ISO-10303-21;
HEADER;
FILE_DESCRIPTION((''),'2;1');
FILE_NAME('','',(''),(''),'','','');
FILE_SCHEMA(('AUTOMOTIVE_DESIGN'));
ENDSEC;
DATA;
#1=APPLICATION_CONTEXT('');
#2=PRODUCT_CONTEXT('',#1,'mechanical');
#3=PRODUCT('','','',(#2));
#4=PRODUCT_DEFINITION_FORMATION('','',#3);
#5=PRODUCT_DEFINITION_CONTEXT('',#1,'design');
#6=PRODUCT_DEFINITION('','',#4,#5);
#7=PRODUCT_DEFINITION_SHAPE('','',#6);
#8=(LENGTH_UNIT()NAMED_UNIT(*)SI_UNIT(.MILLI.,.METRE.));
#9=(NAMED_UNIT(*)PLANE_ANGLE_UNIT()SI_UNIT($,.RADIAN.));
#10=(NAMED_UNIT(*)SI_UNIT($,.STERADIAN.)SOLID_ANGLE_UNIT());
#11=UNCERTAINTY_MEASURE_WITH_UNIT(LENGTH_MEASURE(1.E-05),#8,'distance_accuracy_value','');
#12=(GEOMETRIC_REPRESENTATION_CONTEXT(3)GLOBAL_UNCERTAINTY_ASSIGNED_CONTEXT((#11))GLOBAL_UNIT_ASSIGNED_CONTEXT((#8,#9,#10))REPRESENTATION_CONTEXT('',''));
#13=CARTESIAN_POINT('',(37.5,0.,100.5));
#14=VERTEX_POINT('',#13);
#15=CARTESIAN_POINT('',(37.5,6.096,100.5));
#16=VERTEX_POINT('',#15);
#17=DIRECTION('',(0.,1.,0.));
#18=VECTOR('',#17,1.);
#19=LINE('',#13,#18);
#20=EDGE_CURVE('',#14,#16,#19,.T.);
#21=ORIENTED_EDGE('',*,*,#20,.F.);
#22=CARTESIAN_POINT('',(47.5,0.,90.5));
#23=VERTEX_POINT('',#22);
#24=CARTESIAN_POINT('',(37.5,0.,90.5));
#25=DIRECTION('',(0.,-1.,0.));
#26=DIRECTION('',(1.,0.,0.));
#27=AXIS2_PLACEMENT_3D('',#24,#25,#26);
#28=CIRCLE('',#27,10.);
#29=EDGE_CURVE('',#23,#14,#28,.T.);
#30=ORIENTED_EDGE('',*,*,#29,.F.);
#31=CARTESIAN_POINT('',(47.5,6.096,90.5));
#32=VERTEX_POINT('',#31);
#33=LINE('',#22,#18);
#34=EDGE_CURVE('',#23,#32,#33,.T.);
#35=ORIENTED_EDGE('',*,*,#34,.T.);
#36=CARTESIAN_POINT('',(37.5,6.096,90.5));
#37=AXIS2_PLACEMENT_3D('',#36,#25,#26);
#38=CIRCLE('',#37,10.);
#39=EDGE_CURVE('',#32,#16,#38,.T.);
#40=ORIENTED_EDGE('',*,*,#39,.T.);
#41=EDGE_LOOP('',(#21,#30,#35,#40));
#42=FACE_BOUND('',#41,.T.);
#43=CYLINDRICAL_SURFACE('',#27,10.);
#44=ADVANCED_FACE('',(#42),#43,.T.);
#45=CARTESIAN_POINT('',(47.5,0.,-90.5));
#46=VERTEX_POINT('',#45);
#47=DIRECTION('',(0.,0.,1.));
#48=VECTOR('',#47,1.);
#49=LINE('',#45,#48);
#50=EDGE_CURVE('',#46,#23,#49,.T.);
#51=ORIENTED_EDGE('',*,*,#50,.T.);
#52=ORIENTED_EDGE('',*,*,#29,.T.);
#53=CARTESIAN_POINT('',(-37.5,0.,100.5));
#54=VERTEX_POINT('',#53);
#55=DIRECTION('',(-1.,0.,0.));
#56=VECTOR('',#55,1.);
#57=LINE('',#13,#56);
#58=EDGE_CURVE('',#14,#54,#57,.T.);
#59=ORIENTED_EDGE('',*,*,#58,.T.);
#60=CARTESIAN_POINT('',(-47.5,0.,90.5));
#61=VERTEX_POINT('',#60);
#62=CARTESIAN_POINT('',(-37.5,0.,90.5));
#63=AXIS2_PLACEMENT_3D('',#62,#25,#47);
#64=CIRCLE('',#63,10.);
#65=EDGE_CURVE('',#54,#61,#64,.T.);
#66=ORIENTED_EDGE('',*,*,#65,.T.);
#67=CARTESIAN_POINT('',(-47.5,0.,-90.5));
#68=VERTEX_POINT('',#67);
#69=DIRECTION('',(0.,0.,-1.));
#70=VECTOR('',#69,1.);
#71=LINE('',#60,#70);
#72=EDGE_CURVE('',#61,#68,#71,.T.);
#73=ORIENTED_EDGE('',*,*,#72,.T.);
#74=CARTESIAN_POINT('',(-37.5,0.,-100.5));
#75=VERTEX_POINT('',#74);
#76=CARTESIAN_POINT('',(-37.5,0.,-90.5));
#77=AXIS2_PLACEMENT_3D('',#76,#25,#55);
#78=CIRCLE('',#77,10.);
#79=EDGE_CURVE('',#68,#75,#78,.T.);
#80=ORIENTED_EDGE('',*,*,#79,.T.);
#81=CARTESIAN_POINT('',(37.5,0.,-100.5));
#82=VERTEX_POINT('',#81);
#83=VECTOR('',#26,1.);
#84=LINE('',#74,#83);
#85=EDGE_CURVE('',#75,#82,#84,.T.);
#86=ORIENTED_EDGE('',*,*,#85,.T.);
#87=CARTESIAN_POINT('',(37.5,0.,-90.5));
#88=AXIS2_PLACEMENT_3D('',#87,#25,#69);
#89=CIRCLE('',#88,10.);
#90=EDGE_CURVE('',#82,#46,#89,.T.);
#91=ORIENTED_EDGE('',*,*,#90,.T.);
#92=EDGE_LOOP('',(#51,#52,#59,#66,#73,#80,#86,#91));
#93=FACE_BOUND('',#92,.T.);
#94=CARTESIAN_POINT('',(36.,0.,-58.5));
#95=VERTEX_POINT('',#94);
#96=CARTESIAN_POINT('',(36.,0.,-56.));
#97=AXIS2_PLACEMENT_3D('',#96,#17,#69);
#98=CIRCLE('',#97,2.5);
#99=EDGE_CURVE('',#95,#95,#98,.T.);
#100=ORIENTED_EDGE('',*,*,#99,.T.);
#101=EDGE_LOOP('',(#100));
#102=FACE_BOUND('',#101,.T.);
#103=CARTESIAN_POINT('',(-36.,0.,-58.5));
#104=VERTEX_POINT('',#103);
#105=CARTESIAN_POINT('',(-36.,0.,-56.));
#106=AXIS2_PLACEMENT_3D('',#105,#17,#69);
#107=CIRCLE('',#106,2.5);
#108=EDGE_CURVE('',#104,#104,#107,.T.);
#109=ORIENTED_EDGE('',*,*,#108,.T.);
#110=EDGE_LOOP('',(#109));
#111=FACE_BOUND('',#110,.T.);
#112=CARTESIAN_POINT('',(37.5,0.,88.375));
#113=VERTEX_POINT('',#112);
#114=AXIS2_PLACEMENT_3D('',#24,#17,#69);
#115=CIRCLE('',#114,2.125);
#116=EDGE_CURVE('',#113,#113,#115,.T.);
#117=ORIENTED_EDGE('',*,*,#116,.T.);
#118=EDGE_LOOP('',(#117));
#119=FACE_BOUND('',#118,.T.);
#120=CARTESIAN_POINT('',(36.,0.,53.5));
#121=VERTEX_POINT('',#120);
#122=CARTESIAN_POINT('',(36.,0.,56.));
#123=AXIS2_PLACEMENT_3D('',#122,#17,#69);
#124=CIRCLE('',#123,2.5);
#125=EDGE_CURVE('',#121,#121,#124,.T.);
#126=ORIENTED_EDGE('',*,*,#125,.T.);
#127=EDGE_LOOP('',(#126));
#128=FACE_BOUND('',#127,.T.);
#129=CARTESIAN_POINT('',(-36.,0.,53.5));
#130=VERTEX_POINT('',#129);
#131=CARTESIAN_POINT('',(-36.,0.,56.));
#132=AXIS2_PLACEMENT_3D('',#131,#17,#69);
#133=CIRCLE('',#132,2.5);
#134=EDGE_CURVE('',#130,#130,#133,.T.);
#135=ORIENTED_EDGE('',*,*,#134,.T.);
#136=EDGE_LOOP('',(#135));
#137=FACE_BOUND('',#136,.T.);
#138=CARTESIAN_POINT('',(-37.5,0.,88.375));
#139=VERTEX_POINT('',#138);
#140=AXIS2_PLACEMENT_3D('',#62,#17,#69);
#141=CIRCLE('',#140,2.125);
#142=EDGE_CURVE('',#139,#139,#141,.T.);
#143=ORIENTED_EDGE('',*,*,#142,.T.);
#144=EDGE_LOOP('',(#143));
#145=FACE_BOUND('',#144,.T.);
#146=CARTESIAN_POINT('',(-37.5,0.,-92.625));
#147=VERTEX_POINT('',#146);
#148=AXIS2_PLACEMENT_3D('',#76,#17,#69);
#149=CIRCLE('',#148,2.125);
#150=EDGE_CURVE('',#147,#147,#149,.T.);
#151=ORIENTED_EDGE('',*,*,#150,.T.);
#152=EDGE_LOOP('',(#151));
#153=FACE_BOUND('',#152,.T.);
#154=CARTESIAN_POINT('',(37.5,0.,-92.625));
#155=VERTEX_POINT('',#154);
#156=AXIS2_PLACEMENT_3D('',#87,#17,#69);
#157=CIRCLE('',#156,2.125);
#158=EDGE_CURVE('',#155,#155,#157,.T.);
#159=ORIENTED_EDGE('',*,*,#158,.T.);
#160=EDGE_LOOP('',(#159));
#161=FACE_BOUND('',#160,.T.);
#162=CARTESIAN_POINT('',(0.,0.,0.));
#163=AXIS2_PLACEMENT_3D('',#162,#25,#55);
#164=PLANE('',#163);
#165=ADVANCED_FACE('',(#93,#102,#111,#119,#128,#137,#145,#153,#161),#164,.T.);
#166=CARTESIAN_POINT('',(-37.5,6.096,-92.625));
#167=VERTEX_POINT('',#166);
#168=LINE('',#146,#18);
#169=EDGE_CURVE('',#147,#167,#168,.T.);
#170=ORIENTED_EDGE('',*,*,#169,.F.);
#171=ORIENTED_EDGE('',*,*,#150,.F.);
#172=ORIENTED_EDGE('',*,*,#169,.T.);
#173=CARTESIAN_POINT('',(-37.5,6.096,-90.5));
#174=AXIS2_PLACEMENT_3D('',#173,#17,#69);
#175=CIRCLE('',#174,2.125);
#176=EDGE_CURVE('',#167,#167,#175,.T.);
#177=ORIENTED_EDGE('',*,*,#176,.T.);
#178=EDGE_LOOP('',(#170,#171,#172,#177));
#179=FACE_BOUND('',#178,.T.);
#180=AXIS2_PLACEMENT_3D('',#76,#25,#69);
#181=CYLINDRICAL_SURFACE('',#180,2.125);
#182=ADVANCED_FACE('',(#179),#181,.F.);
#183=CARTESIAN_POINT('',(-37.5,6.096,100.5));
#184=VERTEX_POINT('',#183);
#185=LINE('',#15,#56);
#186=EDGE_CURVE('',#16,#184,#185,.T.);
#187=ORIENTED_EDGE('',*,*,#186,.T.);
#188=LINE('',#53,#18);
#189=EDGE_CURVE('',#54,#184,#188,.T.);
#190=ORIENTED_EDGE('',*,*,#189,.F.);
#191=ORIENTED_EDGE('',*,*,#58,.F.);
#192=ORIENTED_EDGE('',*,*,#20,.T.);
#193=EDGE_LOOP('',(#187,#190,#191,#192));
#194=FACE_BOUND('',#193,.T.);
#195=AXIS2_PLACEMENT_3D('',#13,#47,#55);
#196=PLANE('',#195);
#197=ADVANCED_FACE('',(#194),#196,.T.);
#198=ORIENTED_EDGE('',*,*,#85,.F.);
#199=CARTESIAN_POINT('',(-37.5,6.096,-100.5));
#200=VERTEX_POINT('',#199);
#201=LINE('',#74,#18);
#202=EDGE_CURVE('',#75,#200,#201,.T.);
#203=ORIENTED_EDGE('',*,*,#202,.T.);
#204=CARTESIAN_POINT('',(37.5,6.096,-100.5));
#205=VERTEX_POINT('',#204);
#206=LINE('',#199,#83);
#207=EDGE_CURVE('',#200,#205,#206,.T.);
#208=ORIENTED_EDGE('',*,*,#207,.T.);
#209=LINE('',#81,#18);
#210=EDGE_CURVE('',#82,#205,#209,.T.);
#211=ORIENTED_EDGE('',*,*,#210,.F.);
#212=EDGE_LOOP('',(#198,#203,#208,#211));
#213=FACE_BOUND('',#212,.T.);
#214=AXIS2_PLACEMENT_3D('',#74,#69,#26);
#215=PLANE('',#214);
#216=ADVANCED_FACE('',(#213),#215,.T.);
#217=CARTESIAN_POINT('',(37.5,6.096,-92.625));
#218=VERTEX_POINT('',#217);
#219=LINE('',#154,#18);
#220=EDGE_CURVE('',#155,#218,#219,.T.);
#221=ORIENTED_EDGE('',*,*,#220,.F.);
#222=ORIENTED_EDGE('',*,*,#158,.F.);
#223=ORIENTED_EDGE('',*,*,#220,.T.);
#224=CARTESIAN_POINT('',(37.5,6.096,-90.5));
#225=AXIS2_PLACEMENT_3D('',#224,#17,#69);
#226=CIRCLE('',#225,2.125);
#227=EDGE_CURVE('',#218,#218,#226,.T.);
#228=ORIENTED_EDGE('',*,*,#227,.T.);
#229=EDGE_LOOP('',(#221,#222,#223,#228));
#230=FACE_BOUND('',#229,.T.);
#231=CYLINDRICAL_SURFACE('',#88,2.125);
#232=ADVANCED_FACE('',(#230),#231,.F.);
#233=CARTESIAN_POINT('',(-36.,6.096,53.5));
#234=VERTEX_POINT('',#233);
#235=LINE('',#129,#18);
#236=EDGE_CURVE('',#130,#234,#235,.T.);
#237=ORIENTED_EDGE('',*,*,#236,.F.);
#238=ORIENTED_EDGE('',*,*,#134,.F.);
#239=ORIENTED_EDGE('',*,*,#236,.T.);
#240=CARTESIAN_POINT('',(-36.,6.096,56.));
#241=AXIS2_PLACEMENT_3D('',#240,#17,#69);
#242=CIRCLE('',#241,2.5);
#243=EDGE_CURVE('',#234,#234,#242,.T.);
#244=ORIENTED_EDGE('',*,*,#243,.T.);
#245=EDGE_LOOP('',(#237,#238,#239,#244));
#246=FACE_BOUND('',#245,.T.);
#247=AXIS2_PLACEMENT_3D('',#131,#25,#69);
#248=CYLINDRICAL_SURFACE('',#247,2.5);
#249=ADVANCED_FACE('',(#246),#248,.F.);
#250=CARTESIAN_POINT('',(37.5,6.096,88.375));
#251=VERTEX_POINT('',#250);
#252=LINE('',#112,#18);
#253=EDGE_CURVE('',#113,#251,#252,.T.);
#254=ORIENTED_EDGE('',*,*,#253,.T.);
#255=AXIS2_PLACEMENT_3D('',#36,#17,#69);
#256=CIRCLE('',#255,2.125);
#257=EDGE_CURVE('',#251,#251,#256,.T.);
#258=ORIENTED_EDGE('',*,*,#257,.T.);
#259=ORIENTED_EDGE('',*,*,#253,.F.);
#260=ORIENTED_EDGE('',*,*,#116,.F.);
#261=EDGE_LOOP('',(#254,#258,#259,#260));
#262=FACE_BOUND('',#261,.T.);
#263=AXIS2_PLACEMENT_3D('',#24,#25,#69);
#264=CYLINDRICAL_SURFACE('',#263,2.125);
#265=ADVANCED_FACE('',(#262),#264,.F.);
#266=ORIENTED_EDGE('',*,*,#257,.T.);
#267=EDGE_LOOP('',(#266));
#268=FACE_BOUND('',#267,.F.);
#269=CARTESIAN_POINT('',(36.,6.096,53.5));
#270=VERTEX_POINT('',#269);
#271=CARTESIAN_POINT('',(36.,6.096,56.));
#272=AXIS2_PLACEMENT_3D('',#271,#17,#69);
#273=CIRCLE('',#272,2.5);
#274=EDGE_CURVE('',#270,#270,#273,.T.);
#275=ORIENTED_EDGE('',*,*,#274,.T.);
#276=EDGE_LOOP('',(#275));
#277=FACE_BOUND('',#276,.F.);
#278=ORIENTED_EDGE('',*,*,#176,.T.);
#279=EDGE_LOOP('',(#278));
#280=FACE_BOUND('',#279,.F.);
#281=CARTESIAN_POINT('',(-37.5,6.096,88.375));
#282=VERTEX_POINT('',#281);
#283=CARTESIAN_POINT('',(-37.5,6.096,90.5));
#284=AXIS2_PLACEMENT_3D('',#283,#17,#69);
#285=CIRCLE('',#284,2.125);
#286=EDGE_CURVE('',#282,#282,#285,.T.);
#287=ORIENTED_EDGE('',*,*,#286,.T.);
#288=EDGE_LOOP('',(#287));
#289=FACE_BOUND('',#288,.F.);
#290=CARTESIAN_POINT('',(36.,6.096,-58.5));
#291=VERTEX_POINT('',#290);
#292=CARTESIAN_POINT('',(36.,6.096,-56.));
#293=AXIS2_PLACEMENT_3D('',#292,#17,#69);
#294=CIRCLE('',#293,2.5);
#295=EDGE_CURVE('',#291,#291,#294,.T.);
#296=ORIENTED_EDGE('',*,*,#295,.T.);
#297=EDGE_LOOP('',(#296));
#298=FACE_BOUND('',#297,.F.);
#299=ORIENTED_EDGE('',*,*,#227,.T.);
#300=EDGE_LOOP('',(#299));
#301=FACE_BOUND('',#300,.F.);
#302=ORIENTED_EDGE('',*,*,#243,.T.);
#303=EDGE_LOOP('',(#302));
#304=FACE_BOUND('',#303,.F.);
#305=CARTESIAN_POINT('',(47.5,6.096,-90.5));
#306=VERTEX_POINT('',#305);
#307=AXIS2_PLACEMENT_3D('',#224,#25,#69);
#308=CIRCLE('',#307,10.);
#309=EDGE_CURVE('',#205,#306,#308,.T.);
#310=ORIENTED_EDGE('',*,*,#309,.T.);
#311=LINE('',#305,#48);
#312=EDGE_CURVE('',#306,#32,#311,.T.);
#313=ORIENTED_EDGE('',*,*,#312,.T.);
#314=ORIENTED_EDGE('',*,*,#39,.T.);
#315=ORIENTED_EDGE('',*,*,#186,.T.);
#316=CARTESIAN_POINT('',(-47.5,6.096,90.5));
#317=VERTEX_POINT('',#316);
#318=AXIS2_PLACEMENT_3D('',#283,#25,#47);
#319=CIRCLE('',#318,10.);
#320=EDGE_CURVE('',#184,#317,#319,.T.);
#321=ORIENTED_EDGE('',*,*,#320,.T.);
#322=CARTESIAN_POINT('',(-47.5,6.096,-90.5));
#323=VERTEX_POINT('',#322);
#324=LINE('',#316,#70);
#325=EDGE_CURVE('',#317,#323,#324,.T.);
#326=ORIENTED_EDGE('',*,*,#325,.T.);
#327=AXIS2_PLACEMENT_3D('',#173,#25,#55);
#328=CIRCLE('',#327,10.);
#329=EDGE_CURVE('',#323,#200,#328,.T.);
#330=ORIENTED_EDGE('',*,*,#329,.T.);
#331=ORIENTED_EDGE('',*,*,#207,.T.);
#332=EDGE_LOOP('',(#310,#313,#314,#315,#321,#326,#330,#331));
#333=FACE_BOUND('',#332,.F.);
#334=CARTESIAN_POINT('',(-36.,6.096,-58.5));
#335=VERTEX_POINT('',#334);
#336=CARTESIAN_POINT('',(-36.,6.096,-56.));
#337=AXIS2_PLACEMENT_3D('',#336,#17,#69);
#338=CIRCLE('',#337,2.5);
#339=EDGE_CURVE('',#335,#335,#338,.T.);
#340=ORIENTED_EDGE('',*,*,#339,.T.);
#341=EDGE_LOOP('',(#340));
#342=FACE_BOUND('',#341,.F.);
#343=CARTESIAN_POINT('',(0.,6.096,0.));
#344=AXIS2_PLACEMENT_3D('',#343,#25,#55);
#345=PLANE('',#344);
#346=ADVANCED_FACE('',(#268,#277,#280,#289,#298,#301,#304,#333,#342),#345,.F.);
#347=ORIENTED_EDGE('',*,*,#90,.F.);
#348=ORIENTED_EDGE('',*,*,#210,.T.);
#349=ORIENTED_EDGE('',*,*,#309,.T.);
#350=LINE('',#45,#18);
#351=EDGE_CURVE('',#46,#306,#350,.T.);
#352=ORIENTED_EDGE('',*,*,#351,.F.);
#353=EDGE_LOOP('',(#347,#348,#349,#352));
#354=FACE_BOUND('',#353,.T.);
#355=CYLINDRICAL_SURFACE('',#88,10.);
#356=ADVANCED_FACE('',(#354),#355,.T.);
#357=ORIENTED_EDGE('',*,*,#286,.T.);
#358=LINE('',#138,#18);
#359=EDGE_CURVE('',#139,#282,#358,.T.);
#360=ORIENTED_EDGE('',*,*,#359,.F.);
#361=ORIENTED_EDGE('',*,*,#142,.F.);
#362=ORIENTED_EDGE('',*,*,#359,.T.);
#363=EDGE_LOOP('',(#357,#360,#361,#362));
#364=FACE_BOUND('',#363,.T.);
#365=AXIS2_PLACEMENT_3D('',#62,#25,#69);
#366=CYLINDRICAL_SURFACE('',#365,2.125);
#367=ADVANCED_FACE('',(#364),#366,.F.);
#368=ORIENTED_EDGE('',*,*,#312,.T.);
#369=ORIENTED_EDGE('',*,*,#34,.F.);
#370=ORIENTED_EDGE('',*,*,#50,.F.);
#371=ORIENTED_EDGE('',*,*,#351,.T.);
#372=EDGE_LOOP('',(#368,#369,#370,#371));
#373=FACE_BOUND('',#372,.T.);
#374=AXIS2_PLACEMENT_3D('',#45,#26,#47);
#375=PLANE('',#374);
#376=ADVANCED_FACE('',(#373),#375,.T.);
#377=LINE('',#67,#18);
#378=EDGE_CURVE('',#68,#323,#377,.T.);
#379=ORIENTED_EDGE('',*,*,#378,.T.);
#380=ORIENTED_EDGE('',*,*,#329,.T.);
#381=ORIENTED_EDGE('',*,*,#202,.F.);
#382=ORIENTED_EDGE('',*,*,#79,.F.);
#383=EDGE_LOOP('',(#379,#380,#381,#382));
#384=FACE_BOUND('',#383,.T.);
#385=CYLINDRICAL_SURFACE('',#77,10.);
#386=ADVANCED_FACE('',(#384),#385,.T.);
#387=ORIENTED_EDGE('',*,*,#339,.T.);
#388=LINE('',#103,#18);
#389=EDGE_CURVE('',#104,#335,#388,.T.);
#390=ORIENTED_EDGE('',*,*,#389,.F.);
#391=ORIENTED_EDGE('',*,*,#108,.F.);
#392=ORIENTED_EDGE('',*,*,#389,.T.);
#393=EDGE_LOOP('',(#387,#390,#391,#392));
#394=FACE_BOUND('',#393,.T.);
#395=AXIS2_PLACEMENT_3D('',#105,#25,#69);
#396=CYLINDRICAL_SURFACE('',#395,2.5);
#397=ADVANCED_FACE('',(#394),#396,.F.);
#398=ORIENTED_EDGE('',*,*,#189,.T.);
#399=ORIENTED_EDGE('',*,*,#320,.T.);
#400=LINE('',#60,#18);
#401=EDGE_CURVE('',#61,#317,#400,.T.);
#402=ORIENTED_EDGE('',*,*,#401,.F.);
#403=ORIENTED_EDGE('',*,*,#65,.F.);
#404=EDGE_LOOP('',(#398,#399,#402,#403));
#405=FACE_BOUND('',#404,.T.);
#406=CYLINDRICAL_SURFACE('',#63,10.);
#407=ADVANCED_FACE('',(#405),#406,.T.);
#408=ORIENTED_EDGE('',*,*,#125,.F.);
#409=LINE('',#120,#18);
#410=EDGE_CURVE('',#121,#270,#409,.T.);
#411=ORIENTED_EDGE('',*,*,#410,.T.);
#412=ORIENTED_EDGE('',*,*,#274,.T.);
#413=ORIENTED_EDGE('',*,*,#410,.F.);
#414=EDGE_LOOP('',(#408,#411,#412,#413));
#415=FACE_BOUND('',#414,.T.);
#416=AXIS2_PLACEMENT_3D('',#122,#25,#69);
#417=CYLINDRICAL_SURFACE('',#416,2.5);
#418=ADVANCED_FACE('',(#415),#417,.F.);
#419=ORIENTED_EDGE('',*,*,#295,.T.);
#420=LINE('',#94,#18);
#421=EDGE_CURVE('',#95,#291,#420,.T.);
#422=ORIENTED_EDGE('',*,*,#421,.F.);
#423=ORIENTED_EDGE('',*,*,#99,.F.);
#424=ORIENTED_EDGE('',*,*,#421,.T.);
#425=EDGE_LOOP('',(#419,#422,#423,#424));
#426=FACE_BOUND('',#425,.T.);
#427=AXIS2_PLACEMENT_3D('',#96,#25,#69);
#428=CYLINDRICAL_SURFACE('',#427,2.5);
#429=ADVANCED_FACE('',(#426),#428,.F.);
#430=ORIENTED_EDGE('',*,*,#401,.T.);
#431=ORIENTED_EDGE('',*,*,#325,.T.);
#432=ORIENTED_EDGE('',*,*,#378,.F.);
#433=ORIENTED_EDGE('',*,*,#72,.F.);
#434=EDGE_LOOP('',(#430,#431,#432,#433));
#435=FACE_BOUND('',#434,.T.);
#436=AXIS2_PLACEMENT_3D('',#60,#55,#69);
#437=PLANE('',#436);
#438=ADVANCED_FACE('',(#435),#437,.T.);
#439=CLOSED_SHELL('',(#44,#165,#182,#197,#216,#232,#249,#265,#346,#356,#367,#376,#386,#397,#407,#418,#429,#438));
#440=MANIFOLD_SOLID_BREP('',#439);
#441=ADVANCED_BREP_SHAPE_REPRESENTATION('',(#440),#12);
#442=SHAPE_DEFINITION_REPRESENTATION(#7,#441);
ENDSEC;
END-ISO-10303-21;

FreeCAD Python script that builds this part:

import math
import FreeCAD as App
import Part
import Sketcher

doc = App.newDocument("Part")
params = doc.addObject("Spreadsheet::Sheet", "Params")
for row, (alias, value) in enumerate([
    ("sketch1_diameter", "5 mm"),
    ("sketch1_radius", "10 mm"),
    ("sketch1_diameter2", "4.25 mm"),
    ("sketch1_width", "75 mm"),
    ("sketch1_height", "181 mm"),
    ("pad1_length", "6.096 mm"),
], start=1):
    params.set(f"A{row}", alias)
    params.set(f"B{row}", "=" + value)
    params.setAlias(f"B{row}", alias)

body = doc.addObject("PartDesign::Body", "Body")

# Sketch on XZ plane
sketch1 = doc.addObject("Sketcher::SketchObject", "Sketch")
body.addObject(sketch1)
sketch1.AttachmentSupport = (doc.XZ_Plane, [""])
sketch1.MapMode = "FlatFace"
sketch1.addGeometry([
    Part.LineSegment(App.Vector(37.5, -100.5, 0), App.Vector(-37.5, -100.5, 0)),  # 0
    Part.ArcOfCircle(Part.Circle(App.Vector(-37.5, -90.5, 0), App.Vector(0, 0, 1), 10), math.radians(180), math.radians(270)),  # 1
    Part.LineSegment(App.Vector(-47.5, -90.5, 0), App.Vector(-47.5, 90.5, 0)),  # 2
    Part.ArcOfCircle(Part.Circle(App.Vector(-37.5, 90.5, 0), App.Vector(0, 0, 1), 10), math.radians(90), math.radians(180)),  # 3
    Part.LineSegment(App.Vector(-37.5, 100.5, 0), App.Vector(37.5, 100.5, 0)),  # 4
    Part.ArcOfCircle(Part.Circle(App.Vector(37.5, 90.5, 0), App.Vector(0, 0, 1), 10), math.radians(0), math.radians(90)),  # 5
    Part.LineSegment(App.Vector(47.5, 90.5, 0), App.Vector(47.5, -90.5, 0)),  # 6
    Part.ArcOfCircle(Part.Circle(App.Vector(37.5, -90.5, 0), App.Vector(0, 0, 1), 10), math.radians(-90), math.radians(0)),  # 7
    Part.Circle(App.Vector(37.5, 90.5, 0), App.Vector(0, 0, 1), 2.125),  # 8
    Part.Circle(App.Vector(36, 56, 0), App.Vector(0, 0, 1), 2.5),  # 9
    Part.Circle(App.Vector(-37.5, 90.5, 0), App.Vector(0, 0, 1), 2.125),  # 10
    Part.Circle(App.Vector(-36, 56, 0), App.Vector(0, 0, 1), 2.5),  # 11
    Part.Circle(App.Vector(36, -56, 0), App.Vector(0, 0, 1), 2.5),  # 12
    Part.Circle(App.Vector(37.5, -90.5, 0), App.Vector(0, 0, 1), 2.125),  # 13
    Part.Circle(App.Vector(-36, -56, 0), App.Vector(0, 0, 1), 2.5),  # 14
    Part.Circle(App.Vector(-37.5, -90.5, 0), App.Vector(0, 0, 1), 2.125),  # 15
], False)
sketch1.addConstraint([
    Sketcher.Constraint("Tangent", 0, 2, 1, 2),
    Sketcher.Constraint("Tangent", 1, 1, 2, 1),
    Sketcher.Constraint("Tangent", 2, 2, 3, 2),
    Sketcher.Constraint("Tangent", 3, 1, 4, 1),
    Sketcher.Constraint("Tangent", 4, 2, 5, 2),
    Sketcher.Constraint("Tangent", 5, 1, 6, 1),
    Sketcher.Constraint("Tangent", 6, 2, 7, 2),
    Sketcher.Constraint("Tangent", 7, 1, 0, 1),
    Sketcher.Constraint("Horizontal", 0),
    Sketcher.Constraint("Vertical", 2),
    Sketcher.Constraint("Horizontal", 4),
    Sketcher.Constraint("Vertical", 6),
    Sketcher.Constraint("Coincident", 8, 3, 5, 3),
    Sketcher.Constraint("Coincident", 10, 3, 3, 3),
    Sketcher.Constraint("Coincident", 13, 3, 7, 3),
    Sketcher.Constraint("Coincident", 15, 3, 1, 3),
    Sketcher.Constraint("Equal", 1, 3),
    Sketcher.Constraint("Equal", 3, 5),
    Sketcher.Constraint("Equal", 5, 7),
    Sketcher.Constraint("Equal", 8, 10),
    Sketcher.Constraint("Equal", 9, 11),
    Sketcher.Constraint("Equal", 11, 12),
    Sketcher.Constraint("Equal", 10, 13),
    Sketcher.Constraint("Equal", 12, 14),
    Sketcher.Constraint("Equal", 13, 15),
    Sketcher.Constraint("Symmetric", 1, 3, 5, 3, -1, 1),
    Sketcher.Constraint("Symmetric", 11, 3, 12, 3, -1, 1),
    Sketcher.Constraint("Symmetric", 9, 3, 14, 3, -1, 1),
    Sketcher.Constraint("Symmetric", 9, 3, 11, 3, -2),
    Sketcher.Constraint("Diameter", 9, 5.0),
    Sketcher.Constraint("Radius", 1, 10.0),
    Sketcher.Constraint("Diameter", 8, 4.25),
    Sketcher.Constraint("DistanceX", 0, 2, 0, 1, 75.0),
    Sketcher.Constraint("DistanceY", 2, 1, 2, 2, 181.0),
    Sketcher.Constraint("DistanceX", -1, 1, 9, 3, 36.0),
    Sketcher.Constraint("DistanceY", -1, 1, 9, 3, 56.0),
])
sketch1.setExpression("Constraints[29]", "Params.sketch1_diameter")
sketch1.setExpression("Constraints[30]", "Params.sketch1_radius")
sketch1.setExpression("Constraints[31]", "Params.sketch1_diameter2")
sketch1.setExpression("Constraints[32]", "Params.sketch1_width")
sketch1.setExpression("Constraints[33]", "Params.sketch1_height")
pad1 = doc.addObject("PartDesign::Pad", "Pad")
body.addObject(pad1)
pad1.Profile = sketch1
pad1.setExpression("Length", "Params.pad1_length")
pad1.Reversed = True

doc.recompute()
